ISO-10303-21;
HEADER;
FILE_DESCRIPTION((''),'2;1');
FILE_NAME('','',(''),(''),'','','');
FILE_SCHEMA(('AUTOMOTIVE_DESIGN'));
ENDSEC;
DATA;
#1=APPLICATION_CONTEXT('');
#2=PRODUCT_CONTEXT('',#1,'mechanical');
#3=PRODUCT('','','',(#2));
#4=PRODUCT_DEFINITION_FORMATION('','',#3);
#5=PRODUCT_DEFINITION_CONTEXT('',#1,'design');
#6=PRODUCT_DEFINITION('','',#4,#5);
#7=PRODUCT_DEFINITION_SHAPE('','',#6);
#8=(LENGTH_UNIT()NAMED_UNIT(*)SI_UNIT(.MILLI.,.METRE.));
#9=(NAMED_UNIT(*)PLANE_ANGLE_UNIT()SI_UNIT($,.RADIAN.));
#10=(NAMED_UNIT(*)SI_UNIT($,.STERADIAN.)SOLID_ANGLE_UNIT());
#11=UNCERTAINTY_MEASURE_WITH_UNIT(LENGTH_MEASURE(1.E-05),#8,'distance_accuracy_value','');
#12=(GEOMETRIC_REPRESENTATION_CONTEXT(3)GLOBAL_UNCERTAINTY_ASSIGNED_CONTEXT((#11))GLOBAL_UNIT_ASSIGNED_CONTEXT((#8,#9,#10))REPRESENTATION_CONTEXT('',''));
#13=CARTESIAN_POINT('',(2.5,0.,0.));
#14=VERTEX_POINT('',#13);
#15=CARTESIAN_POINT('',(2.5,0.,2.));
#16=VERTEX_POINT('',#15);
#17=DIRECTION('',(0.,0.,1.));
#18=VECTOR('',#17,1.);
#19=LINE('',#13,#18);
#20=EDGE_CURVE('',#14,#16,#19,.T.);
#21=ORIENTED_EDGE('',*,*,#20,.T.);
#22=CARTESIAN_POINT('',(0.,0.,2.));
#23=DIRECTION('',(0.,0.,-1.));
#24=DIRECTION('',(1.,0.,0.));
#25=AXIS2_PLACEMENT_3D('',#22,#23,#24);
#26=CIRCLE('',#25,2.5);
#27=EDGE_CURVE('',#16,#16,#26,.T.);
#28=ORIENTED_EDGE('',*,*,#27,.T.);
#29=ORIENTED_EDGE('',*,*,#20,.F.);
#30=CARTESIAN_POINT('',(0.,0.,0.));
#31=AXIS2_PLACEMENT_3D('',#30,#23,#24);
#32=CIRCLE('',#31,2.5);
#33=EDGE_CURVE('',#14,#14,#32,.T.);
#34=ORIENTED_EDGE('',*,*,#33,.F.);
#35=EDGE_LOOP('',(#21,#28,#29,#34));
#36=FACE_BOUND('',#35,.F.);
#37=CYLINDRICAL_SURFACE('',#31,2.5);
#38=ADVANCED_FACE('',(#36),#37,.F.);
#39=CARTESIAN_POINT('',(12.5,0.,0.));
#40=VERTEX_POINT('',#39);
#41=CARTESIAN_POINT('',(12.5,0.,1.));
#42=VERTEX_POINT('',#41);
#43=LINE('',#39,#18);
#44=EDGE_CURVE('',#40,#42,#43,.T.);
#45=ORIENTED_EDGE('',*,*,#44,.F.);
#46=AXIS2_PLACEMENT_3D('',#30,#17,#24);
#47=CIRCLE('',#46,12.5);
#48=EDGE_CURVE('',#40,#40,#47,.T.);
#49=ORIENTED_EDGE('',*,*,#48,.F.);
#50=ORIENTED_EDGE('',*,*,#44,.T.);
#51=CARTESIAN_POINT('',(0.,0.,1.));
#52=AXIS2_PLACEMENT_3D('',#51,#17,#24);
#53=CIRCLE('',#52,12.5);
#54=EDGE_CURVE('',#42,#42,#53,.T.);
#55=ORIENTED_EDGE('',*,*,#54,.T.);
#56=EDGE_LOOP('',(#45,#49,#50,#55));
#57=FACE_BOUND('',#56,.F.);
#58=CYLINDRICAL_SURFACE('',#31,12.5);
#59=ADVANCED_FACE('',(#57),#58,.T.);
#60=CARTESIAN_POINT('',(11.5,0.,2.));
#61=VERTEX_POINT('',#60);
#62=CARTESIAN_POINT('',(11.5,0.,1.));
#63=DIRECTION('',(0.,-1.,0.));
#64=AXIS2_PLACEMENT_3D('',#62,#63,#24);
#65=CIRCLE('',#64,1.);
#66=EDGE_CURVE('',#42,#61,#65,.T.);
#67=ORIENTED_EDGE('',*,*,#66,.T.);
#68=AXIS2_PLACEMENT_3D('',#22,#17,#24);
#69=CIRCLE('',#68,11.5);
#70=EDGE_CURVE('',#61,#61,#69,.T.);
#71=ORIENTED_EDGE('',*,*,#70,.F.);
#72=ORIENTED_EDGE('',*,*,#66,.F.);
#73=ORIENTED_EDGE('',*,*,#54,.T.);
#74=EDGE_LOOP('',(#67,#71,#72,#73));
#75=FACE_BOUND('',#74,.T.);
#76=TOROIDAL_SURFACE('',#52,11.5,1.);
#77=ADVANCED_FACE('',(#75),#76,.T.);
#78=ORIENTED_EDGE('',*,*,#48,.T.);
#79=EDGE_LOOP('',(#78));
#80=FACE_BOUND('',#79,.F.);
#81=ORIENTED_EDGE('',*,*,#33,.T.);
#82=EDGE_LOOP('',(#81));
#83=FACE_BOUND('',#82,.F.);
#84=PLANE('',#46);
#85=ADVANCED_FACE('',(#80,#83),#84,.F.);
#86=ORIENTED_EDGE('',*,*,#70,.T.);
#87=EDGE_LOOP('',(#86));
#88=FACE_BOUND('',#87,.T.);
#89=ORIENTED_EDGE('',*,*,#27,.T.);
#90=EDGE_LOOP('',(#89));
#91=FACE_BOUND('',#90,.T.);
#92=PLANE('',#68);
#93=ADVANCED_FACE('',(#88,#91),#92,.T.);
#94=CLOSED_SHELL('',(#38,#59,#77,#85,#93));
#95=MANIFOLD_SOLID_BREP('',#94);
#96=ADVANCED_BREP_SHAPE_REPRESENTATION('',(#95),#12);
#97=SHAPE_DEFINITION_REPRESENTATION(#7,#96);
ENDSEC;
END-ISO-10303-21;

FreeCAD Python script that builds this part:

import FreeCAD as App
import Part
import Sketcher

V = App.Vector


def edges_at(feature, points):
    """Names of the edges that pass closest to the given points."""
    edges = feature.Shape.Edges
    near = lambda p: min(range(len(edges)), key=lambda i: edges[i].distToShape(Part.Vertex(*p))[0])
    return sorted({f"Edge{near(p) + 1}" for p in points})

doc = App.newDocument("Part")
body = doc.addObject("PartDesign::Body", "Body")

sketch1 = body.newObject("Sketcher::SketchObject", "Sketch")
sketch1.AttachmentSupport = (doc.getObject("XY_Plane"), [""])
sketch1.MapMode = "FlatFace"
sketch1.addGeometry(Part.Circle(V(0, 0, 0), V(0, 0, 1), 12.5), False)
sketch1.addConstraint(Sketcher.Constraint("Coincident", 0, 3, -1, 1))
sketch1.addConstraint(Sketcher.Constraint("Diameter", 0, 25.0))
pad1 = body.newObject("PartDesign::Pad", "Pad")
pad1.Profile = sketch1
pad1.Length = 2
doc.recompute()

fillet = body.newObject("PartDesign::Fillet", "Fillet")
fillet.Base = (pad1, edges_at(pad1, [(-12.5, 0, 2)]))
fillet.Radius = 1

sketch2 = body.newObject("Sketcher::SketchObject", "Sketch001")
sketch2.AttachmentSupport = (doc.getObject("XY_Plane"), [""])
sketch2.MapMode = "FlatFace"
sketch2.addGeometry(Part.Circle(V(0, 0, 0), V(0, 0, 1), 2.5), False)
sketch2.addConstraint(Sketcher.Constraint("Coincident", 0, 3, -1, 1))
sketch2.addConstraint(Sketcher.Constraint("Diameter", 0, 5.0))
pocket1 = body.newObject("PartDesign::Pocket", "Pocket")
pocket1.Profile = sketch2
pocket1.Length = 25.4
pocket1.Reversed = True

doc.recompute()
